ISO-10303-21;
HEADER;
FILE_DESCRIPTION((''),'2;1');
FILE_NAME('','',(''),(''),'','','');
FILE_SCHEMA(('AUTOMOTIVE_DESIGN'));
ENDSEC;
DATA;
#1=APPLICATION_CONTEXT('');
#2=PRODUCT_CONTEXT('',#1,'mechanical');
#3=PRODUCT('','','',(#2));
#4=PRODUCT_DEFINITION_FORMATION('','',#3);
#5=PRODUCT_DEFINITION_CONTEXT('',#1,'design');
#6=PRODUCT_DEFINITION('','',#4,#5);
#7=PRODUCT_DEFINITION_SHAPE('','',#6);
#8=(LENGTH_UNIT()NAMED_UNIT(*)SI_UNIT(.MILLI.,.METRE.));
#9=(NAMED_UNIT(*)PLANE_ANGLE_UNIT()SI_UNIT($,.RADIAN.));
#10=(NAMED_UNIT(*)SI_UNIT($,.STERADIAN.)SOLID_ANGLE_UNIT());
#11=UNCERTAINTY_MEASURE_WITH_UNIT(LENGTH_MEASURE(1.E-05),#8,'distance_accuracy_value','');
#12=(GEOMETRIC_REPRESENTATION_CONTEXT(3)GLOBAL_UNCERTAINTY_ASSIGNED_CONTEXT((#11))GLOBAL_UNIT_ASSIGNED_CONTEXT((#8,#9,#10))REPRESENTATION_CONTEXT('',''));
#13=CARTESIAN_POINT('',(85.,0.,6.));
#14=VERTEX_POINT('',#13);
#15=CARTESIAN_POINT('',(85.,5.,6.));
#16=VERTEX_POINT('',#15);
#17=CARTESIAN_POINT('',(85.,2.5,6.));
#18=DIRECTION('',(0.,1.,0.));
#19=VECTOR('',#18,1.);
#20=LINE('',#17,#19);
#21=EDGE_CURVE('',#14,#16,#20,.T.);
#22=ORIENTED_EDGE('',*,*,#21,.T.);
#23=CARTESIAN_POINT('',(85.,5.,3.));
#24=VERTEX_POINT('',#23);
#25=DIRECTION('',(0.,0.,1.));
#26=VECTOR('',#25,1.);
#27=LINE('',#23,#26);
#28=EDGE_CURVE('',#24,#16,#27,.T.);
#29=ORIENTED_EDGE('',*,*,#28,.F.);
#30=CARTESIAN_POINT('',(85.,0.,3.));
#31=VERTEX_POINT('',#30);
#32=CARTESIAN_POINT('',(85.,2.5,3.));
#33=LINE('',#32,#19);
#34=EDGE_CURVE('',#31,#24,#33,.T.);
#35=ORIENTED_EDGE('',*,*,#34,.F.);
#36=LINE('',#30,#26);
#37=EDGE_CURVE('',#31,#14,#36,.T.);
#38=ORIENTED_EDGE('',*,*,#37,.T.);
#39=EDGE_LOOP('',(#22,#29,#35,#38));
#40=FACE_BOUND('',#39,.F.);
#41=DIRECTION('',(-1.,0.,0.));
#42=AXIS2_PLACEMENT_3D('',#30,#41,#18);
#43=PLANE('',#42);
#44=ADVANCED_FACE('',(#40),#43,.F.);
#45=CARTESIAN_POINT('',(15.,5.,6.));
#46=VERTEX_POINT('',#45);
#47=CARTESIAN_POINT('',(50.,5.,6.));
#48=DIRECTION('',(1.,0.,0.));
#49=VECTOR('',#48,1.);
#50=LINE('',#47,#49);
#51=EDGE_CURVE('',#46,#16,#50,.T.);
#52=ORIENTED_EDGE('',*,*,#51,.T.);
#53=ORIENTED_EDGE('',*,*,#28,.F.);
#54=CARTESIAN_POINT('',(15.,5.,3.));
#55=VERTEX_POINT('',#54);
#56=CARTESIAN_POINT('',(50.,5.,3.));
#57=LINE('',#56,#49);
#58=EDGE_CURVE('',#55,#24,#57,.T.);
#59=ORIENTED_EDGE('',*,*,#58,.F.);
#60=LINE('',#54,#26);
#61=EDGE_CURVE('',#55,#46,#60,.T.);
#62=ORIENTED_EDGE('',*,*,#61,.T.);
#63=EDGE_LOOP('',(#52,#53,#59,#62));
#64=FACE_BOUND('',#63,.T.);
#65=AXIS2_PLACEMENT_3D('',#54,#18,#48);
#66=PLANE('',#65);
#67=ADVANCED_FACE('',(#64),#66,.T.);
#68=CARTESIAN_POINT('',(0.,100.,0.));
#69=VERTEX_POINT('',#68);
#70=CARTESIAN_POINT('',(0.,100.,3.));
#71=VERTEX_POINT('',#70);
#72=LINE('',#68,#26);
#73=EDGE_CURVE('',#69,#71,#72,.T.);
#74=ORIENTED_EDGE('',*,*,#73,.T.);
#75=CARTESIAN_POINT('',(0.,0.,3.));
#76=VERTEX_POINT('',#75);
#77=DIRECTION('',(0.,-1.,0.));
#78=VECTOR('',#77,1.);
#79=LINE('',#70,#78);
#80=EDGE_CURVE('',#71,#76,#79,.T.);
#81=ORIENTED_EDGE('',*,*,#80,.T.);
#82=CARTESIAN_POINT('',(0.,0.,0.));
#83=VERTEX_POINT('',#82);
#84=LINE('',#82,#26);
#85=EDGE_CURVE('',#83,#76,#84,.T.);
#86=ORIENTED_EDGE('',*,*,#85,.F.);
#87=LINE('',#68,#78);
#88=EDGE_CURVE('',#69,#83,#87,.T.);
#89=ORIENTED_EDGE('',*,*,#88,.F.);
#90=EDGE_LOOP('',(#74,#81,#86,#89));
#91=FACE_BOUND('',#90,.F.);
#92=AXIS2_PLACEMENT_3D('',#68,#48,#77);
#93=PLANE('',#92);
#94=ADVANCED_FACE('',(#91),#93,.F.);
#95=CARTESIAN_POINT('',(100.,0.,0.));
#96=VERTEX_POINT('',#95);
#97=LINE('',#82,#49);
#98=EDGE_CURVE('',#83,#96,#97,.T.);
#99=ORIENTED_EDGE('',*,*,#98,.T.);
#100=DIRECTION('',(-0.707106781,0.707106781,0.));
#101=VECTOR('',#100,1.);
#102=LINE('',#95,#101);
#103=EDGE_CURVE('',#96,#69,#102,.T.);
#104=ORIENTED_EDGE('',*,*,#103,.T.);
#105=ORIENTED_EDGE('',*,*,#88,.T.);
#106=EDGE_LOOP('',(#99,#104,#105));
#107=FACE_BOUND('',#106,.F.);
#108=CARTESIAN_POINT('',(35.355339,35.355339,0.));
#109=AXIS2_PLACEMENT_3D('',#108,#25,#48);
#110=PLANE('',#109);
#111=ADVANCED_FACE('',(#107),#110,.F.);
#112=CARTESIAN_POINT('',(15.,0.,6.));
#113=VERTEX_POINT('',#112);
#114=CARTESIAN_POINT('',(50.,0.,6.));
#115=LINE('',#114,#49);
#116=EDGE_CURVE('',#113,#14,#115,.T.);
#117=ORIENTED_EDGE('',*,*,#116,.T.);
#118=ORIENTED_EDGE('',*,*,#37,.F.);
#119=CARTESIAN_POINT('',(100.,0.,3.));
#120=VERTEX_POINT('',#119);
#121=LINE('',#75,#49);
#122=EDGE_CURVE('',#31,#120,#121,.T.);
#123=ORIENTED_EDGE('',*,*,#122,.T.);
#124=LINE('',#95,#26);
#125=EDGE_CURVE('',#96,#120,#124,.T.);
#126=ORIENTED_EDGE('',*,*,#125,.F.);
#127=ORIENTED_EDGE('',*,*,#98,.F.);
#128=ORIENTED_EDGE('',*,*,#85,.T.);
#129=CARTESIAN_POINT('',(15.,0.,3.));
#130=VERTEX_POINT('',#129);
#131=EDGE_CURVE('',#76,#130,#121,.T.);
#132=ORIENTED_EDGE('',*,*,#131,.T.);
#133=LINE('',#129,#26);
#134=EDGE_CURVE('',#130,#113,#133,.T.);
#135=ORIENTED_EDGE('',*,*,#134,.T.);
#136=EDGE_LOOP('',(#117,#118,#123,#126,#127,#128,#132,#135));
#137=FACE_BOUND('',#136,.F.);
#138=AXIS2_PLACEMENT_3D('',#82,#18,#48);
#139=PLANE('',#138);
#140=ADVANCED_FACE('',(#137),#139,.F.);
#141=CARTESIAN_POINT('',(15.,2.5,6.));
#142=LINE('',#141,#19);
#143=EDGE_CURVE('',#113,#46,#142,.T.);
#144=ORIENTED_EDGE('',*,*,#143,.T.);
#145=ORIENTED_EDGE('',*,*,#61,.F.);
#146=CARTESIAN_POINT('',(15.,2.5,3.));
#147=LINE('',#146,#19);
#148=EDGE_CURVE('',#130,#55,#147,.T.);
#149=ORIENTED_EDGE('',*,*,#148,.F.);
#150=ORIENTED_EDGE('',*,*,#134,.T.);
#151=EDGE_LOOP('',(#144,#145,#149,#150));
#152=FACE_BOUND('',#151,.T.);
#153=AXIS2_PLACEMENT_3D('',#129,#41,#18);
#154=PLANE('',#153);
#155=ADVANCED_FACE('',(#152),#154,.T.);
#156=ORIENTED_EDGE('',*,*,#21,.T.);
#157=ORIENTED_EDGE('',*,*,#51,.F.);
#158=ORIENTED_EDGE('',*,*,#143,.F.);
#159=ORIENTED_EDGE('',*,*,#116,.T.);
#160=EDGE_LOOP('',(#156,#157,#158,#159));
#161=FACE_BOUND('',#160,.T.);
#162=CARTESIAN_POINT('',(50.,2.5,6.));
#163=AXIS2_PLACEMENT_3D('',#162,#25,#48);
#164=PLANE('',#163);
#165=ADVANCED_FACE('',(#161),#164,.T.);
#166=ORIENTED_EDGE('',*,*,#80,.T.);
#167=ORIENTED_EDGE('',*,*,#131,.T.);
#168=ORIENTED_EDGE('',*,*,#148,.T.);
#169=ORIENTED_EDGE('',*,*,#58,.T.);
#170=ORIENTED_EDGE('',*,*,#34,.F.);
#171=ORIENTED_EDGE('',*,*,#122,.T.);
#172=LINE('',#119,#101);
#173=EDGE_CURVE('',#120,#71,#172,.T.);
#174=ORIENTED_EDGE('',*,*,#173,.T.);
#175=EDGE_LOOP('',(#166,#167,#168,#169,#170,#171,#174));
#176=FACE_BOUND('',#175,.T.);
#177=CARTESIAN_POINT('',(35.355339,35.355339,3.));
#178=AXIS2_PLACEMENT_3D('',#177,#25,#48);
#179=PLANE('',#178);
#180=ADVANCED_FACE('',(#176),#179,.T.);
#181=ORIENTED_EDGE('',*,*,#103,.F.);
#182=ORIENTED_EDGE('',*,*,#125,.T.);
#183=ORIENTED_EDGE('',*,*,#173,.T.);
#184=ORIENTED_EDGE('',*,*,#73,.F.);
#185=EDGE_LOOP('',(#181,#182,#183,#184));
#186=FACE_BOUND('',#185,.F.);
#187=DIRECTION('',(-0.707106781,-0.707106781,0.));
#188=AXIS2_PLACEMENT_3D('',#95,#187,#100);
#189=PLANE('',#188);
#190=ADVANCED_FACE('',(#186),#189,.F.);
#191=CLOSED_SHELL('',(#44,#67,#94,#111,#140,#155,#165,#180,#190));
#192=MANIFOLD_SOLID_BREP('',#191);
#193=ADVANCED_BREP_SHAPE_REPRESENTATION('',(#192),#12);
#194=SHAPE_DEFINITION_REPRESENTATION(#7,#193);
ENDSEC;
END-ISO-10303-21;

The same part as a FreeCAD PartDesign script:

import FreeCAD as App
import Part
import Sketcher
from FreeCAD import Vector

doc = App.newDocument("Part")
body = doc.addObject("PartDesign::Body", "Body")

sketch1 = body.newObject("Sketcher::SketchObject", "Sketch")
sketch1.AttachmentSupport = (doc.getObject("XY_Plane"), [""])
sketch1.MapMode = "FlatFace"
sketch1.addGeometry([
    Part.LineSegment(Vector(0, 100, 0), Vector(0, 0, 0)),
    Part.LineSegment(Vector(0, 0, 0), Vector(100, 0, 0)),
    Part.LineSegment(Vector(100, 0, 0), Vector(0, 100, 0)),
], False)
sketch1.addConstraint([
    Sketcher.Constraint("Coincident", 0, 2, 1, 1),
    Sketcher.Constraint("Coincident", 1, 2, 2, 1),
    Sketcher.Constraint("Coincident", 2, 2, 0, 1),
    Sketcher.Constraint("Vertical", 0),
    Sketcher.Constraint("Horizontal", 1),
    Sketcher.Constraint("Coincident", 0, 2, -1, 1),
    Sketcher.Constraint("Equal", 1, 0),
    Sketcher.Constraint("DistanceX", 1, 1, 1, 2, 100.0),
])
pad1 = body.newObject("PartDesign::Pad", "Pad")
pad1.Profile = sketch1
pad1.Length = 3

sketch2 = body.newObject("Sketcher::SketchObject", "Sketch001")
sketch2.AttachmentSupport = (doc.getObject("XY_Plane"), [""])
sketch2.MapMode = "FlatFace"
sketch2.AttachmentOffset = App.Placement(Vector(0, 0, 3), App.Rotation())
sketch2.addGeometry([
    Part.LineSegment(Vector(15, 5, 0), Vector(15, 0, 0)),
    Part.LineSegment(Vector(15, 0, 0), Vector(85, 0, 0)),
    Part.LineSegment(Vector(85, 0, 0), Vector(85, 5, 0)),
    Part.LineSegment(Vector(85, 5, 0), Vector(15, 5, 0)),
], False)
sketch2.addConstraint([
    Sketcher.Constraint("Coincident", 0, 2, 1, 1),
    Sketcher.Constraint("Coincident", 1, 2, 2, 1),
    Sketcher.Constraint("Coincident", 2, 2, 3, 1),
    Sketcher.Constraint("Coincident", 3, 2, 0, 1),
    Sketcher.Constraint("Vertical", 0),
    Sketcher.Constraint("Horizontal", 1),
    Sketcher.Constraint("Vertical", 2),
    Sketcher.Constraint("Horizontal", 3),
    Sketcher.Constraint("PointOnObject", 0, 2, -1),
    Sketcher.Constraint("DistanceX", 1, 1, 1, 2, 70.0),
    Sketcher.Constraint("DistanceY", 0, 2, 0, 1, 5.0),
    Sketcher.Constraint("DistanceX", -1, 1, 0, 2, 15.0),
])
pad2 = body.newObject("PartDesign::Pad", "Pad001")
pad2.Profile = sketch2
pad2.Length = 3

doc.recompute()
